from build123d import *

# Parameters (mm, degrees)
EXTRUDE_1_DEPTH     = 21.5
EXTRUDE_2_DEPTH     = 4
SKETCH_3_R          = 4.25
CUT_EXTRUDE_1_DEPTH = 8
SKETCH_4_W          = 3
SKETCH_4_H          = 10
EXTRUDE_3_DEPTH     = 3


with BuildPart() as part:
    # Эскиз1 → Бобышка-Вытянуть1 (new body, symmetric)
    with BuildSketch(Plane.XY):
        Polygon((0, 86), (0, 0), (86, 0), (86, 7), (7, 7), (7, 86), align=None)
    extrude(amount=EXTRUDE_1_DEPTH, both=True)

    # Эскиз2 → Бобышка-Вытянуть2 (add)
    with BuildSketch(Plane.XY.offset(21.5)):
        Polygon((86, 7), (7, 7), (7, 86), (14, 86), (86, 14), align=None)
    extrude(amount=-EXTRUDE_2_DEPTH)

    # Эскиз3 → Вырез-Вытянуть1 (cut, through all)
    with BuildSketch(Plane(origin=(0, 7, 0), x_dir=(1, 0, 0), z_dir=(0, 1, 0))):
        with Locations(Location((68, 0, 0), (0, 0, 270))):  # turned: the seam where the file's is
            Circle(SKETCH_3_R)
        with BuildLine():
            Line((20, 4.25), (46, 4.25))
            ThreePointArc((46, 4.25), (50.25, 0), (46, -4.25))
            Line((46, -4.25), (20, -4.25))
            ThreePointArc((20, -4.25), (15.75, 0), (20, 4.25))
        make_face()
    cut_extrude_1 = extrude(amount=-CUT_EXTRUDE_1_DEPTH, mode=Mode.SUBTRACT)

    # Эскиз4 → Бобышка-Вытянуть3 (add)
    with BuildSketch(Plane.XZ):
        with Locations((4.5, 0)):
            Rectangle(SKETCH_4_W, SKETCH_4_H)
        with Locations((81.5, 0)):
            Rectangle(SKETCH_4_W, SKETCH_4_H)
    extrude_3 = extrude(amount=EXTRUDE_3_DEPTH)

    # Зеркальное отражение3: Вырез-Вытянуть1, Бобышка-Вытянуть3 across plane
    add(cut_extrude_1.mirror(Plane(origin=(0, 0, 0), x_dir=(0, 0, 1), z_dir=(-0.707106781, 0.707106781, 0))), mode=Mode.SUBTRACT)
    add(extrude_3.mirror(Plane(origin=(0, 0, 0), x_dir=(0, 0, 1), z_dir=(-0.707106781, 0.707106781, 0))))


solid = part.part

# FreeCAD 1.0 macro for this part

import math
import FreeCAD as App
import Part
import Sketcher

doc = App.newDocument("Part")
body = doc.addObject("PartDesign::Body", "Body")

sketch1 = doc.addObject("Sketcher::SketchObject", "Sketch")
body.addObject(sketch1)
sketch1.AttachmentSupport = (doc.XY_Plane, [""])
sketch1.MapMode = "FlatFace"
sketch1.addGeometry(Part.LineSegment(App.Vector(0, 86, 0), App.Vector(0, 0, 0)), False)
sketch1.addGeometry(Part.LineSegment(App.Vector(0, 0, 0), App.Vector(86, 0, 0)), False)
sketch1.addGeometry(Part.LineSegment(App.Vector(86, 0, 0), App.Vector(86, 7, 0)), False)
sketch1.addGeometry(Part.LineSegment(App.Vector(86, 7, 0), App.Vector(7, 7, 0)), False)
sketch1.addGeometry(Part.LineSegment(App.Vector(7, 7, 0), App.Vector(7, 86, 0)), False)
sketch1.addGeometry(Part.LineSegment(App.Vector(7, 86, 0), App.Vector(0, 86, 0)), False)
sketch1.addConstraint(Sketcher.Constraint("Coincident", 0, 2, 1, 1))
sketch1.addConstraint(Sketcher.Constraint("Coincident", 1, 2, 2, 1))
sketch1.addConstraint(Sketcher.Constraint("Coincident", 2, 2, 3, 1))
sketch1.addConstraint(Sketcher.Constraint("Coincident", 3, 2, 4, 1))
sketch1.addConstraint(Sketcher.Constraint("Coincident", 4, 2, 5, 1))
sketch1.addConstraint(Sketcher.Constraint("Coincident", 5, 2, 0, 1))
sketch1.addConstraint(Sketcher.Constraint("Vertical", 0))
sketch1.addConstraint(Sketcher.Constraint("Horizontal", 1))
sketch1.addConstraint(Sketcher.Constraint("Vertical", 2))
sketch1.addConstraint(Sketcher.Constraint("Horizontal", 3))
sketch1.addConstraint(Sketcher.Constraint("Vertical", 4))
sketch1.addConstraint(Sketcher.Constraint("Horizontal", 5))
sketch1.addConstraint(Sketcher.Constraint("Coincident", 0, 2, -1, 1))
sketch1.addConstraint(Sketcher.Constraint("Equal", 1, 0))
sketch1.addConstraint(Sketcher.Constraint("Equal", 5, 2))
sketch1.addConstraint(Sketcher.Constraint("DistanceX", 1, 1, 1, 2, 86.0))
sketch1.addConstraint(Sketcher.Constraint("DistanceX", 3, 2, 3, 1, 79.0))
pad1 = doc.addObject("PartDesign::Pad", "Pad")
body.addObject(pad1)
pad1.Profile = sketch1
pad1.Length = 43
pad1.Midplane = True

sketch2 = doc.addObject("Sketcher::SketchObject", "Sketch001")
body.addObject(sketch2)
sketch2.AttachmentSupport = (doc.XY_Plane, [""])
sketch2.MapMode = "FlatFace"
sketch2.AttachmentOffset = App.Placement(App.Vector(0, 0, 21.5), App.Rotation())
sketch2.addGeometry(Part.LineSegment(App.Vector(7, 7, 0), App.Vector(86, 7, 0)), False)
sketch2.addGeometry(Part.LineSegment(App.Vector(86, 7, 0), App.Vector(86, 14, 0)), False)
sketch2.addGeometry(Part.LineSegment(App.Vector(86, 14, 0), App.Vector(14, 86, 0)), False)
sketch2.addGeometry(Part.LineSegment(App.Vector(14, 86, 0), App.Vector(7, 86, 0)), False)
sketch2.addGeometry(Part.LineSegment(App.Vector(7, 86, 0), App.Vector(7, 7, 0)), False)
sketch2.addConstraint(Sketcher.Constraint("Coincident", 0, 2, 1, 1))
sketch2.addConstraint(Sketcher.Constraint("Coincident", 1, 2, 2, 1))
sketch2.addConstraint(Sketcher.Constraint("Coincident", 2, 2, 3, 1))
sketch2.addConstraint(Sketcher.Constraint("Coincident", 3, 2, 4, 1))
sketch2.addConstraint(Sketcher.Constraint("Coincident", 4, 2, 0, 1))
sketch2.addConstraint(Sketcher.Constraint("Horizontal", 0))
sketch2.addConstraint(Sketcher.Constraint("Vertical", 1))
sketch2.addConstraint(Sketcher.Constraint("Horizontal", 3))
sketch2.addConstraint(Sketcher.Constraint("Vertical", 4))
sketch2.addConstraint(Sketcher.Constraint("Equal", 3, 1))
sketch2.addConstraint(Sketcher.Constraint("Equal", 0, 4))
sketch2.addConstraint(Sketcher.Constraint("DistanceX", 0, 1, 0, 2, 79.0))
sketch2.addConstraint(Sketcher.Constraint("DistanceX", 3, 2, 3, 1, 7.0))
sketch2.addConstraint(Sketcher.Constraint("DistanceX", -1, 1, 0, 2, 86.0))
sketch2.addConstraint(Sketcher.Constraint("DistanceY", -1, 1, 0, 2, 7.0))
pad2 = doc.addObject("PartDesign::Pad", "Pad001")
body.addObject(pad2)
pad2.Profile = sketch2
pad2.Length = 4
pad2.Reversed = True

sketch3 = doc.addObject("Sketcher::SketchObject", "Sketch002")
body.addObject(sketch3)
sketch3.AttachmentSupport = (doc.XZ_Plane, [""])
sketch3.MapMode = "FlatFace"
sketch3.AttachmentOffset = App.Placement(App.Vector(0, 0, -7), App.Rotation())
sketch3.addGeometry(Part.Circle(App.Vector(68, 0, 0), App.Vector(0, 0, 1), 4.25), False)
sketch3.addGeometry(Part.LineSegment(App.Vector(46, -4.25, 0), App.Vector(20, -4.25, 0)), False)
sketch3.addGeometry(Part.ArcOfCircle(Part.Circle(App.Vector(20, 0, 0), App.Vector(0, 0, 1), 4.25), math.radians(90), math.radians(270)), False)
sketch3.addGeometry(Part.LineSegment(App.Vector(20, 4.25, 0), App.Vector(46, 4.25, 0)), False)
sketch3.addGeometry(Part.ArcOfCircle(Part.Circle(App.Vector(46, 0, 0), App.Vector(0, 0, 1), 4.25), math.radians(-90), math.radians(90)), False)
sketch3.addConstraint(Sketcher.Constraint("Tangent", 1, 2, 2, 2))
sketch3.addConstraint(Sketcher.Constraint("Tangent", 2, 1, 3, 1))
sketch3.addConstraint(Sketcher.Constraint("Tangent", 3, 2, 4, 2))
sketch3.addConstraint(Sketcher.Constraint("Tangent", 4, 1, 1, 1))
sketch3.addConstraint(Sketcher.Constraint("Horizontal", 1))
sketch3.addConstraint(Sketcher.Constraint("Horizontal", 3))
sketch3.addConstraint(Sketcher.Constraint("Equal", 0, 2))
sketch3.addConstraint(Sketcher.Constraint("PointOnObject", 0, 3, -1))
sketch3.addConstraint(Sketcher.Constraint("PointOnObject", 2, 3, -1))
sketch3.addConstraint(Sketcher.Constraint("Diameter", 0, 8.5))
sketch3.addConstraint(Sketcher.Constraint("DistanceX", 1, 2, 1, 1, 26.0))
sketch3.addConstraint(Sketcher.Constraint("DistanceX", -1, 1, 0, 3, 68.0))
sketch3.addConstraint(Sketcher.Constraint("DistanceX", -1, 1, 2, 3, 20.0))
pocket1 = doc.addObject("PartDesign::Pocket", "Pocket")
body.addObject(pocket1)
pocket1.Profile = sketch3
pocket1.Type = "ThroughAll"
pocket1.Reversed = True

sketch4 = doc.addObject("Sketcher::SketchObject", "Sketch003")
body.addObject(sketch4)
sketch4.AttachmentSupport = (doc.XZ_Plane, [""])
sketch4.MapMode = "FlatFace"
sketch4.addGeometry(Part.LineSegment(App.Vector(3, 5, 0), App.Vector(3, -5, 0)), False)
sketch4.addGeometry(Part.LineSegment(App.Vector(3, -5, 0), App.Vector(6, -5, 0)), False)
sketch4.addGeometry(Part.LineSegment(App.Vector(6, -5, 0), App.Vector(6, 5, 0)), False)
sketch4.addGeometry(Part.LineSegment(App.Vector(6, 5, 0), App.Vector(3, 5, 0)), False)
sketch4.addGeometry(Part.LineSegment(App.Vector(80, 5, 0), App.Vector(80, -5, 0)), False)
sketch4.addGeometry(Part.LineSegment(App.Vector(80, -5, 0), App.Vector(83, -5, 0)), False)
sketch4.addGeometry(Part.LineSegment(App.Vector(83, -5, 0), App.Vector(83, 5, 0)), False)
sketch4.addGeometry(Part.LineSegment(App.Vector(83, 5, 0), App.Vector(80, 5, 0)), False)
sketch4.addConstraint(Sketcher.Constraint("Coincident", 0, 2, 1, 1))
sketch4.addConstraint(Sketcher.Constraint("Coincident", 1, 2, 2, 1))
sketch4.addConstraint(Sketcher.Constraint("Coincident", 2, 2, 3, 1))
sketch4.addConstraint(Sketcher.Constraint("Coincident", 3, 2, 0, 1))
sketch4.addConstraint(Sketcher.Constraint("Coincident", 4, 2, 5, 1))
sketch4.addConstraint(Sketcher.Constraint("Coincident", 5, 2, 6, 1))
sketch4.addConstraint(Sketcher.Constraint("Coincident", 6, 2, 7, 1))
sketch4.addConstraint(Sketcher.Constraint("Coincident", 7, 2, 4, 1))
sketch4.addConstraint(Sketcher.Constraint("Vertical", 0))
sketch4.addConstraint(Sketcher.Constraint("Horizontal", 1))
sketch4.addConstraint(Sketcher.Constraint("Vertical", 2))
sketch4.addConstraint(Sketcher.Constraint("Horizontal", 3))
sketch4.addConstraint(Sketcher.Constraint("Vertical", 4))
sketch4.addConstraint(Sketcher.Constraint("Horizontal", 5))
sketch4.addConstraint(Sketcher.Constraint("Vertical", 6))
sketch4.addConstraint(Sketcher.Constraint("Horizontal", 7))
sketch4.addConstraint(Sketcher.Constraint("Horizontal", 1, 2, 4, 2))
sketch4.addConstraint(Sketcher.Constraint("Horizontal", 3, 2, 6, 2))
sketch4.addConstraint(Sketcher.Constraint("Equal", 3, 5))
sketch4.addConstraint(Sketcher.Constraint("DistanceX", 1, 1, 1, 2, 3.0))
sketch4.addConstraint(Sketcher.Constraint("DistanceY", 0, 2, 0, 1, 10.0))
sketch4.addConstraint(Sketcher.Constraint("DistanceX", -1, 1, 0, 2, 3.0))
sketch4.addConstraint(Sketcher.Constraint("DistanceY", 0, 2, -1, 1, 5.0))
sketch4.addConstraint(Sketcher.Constraint("DistanceX", -1, 1, 4, 2, 80.0))
pad3 = doc.addObject("PartDesign::Pad", "Pad002")
body.addObject(pad3)
pad3.Profile = sketch4
pad3.Length = 3
doc.recompute()

datumplane = doc.addObject("PartDesign::Plane", "DatumPlane")
body.addObject(datumplane)
datumplane.Placement = App.Placement(App.Vector(0, 0, 0), App.Rotation(App.Vector(0.707106781, 0.707106781, 0), App.Vector(0, 0, -1), App.Vector(-0.707106781, 0.707106781, 0), "ZXY"))
mirrored = doc.addObject("PartDesign::Mirrored", "Mirrored")
body.addObject(mirrored)
mirrored.Originals = [pocket1, pad3]
mirrored.MirrorPlane = (datumplane, [""])
body.Tip = mirrored

doc.recompute()
